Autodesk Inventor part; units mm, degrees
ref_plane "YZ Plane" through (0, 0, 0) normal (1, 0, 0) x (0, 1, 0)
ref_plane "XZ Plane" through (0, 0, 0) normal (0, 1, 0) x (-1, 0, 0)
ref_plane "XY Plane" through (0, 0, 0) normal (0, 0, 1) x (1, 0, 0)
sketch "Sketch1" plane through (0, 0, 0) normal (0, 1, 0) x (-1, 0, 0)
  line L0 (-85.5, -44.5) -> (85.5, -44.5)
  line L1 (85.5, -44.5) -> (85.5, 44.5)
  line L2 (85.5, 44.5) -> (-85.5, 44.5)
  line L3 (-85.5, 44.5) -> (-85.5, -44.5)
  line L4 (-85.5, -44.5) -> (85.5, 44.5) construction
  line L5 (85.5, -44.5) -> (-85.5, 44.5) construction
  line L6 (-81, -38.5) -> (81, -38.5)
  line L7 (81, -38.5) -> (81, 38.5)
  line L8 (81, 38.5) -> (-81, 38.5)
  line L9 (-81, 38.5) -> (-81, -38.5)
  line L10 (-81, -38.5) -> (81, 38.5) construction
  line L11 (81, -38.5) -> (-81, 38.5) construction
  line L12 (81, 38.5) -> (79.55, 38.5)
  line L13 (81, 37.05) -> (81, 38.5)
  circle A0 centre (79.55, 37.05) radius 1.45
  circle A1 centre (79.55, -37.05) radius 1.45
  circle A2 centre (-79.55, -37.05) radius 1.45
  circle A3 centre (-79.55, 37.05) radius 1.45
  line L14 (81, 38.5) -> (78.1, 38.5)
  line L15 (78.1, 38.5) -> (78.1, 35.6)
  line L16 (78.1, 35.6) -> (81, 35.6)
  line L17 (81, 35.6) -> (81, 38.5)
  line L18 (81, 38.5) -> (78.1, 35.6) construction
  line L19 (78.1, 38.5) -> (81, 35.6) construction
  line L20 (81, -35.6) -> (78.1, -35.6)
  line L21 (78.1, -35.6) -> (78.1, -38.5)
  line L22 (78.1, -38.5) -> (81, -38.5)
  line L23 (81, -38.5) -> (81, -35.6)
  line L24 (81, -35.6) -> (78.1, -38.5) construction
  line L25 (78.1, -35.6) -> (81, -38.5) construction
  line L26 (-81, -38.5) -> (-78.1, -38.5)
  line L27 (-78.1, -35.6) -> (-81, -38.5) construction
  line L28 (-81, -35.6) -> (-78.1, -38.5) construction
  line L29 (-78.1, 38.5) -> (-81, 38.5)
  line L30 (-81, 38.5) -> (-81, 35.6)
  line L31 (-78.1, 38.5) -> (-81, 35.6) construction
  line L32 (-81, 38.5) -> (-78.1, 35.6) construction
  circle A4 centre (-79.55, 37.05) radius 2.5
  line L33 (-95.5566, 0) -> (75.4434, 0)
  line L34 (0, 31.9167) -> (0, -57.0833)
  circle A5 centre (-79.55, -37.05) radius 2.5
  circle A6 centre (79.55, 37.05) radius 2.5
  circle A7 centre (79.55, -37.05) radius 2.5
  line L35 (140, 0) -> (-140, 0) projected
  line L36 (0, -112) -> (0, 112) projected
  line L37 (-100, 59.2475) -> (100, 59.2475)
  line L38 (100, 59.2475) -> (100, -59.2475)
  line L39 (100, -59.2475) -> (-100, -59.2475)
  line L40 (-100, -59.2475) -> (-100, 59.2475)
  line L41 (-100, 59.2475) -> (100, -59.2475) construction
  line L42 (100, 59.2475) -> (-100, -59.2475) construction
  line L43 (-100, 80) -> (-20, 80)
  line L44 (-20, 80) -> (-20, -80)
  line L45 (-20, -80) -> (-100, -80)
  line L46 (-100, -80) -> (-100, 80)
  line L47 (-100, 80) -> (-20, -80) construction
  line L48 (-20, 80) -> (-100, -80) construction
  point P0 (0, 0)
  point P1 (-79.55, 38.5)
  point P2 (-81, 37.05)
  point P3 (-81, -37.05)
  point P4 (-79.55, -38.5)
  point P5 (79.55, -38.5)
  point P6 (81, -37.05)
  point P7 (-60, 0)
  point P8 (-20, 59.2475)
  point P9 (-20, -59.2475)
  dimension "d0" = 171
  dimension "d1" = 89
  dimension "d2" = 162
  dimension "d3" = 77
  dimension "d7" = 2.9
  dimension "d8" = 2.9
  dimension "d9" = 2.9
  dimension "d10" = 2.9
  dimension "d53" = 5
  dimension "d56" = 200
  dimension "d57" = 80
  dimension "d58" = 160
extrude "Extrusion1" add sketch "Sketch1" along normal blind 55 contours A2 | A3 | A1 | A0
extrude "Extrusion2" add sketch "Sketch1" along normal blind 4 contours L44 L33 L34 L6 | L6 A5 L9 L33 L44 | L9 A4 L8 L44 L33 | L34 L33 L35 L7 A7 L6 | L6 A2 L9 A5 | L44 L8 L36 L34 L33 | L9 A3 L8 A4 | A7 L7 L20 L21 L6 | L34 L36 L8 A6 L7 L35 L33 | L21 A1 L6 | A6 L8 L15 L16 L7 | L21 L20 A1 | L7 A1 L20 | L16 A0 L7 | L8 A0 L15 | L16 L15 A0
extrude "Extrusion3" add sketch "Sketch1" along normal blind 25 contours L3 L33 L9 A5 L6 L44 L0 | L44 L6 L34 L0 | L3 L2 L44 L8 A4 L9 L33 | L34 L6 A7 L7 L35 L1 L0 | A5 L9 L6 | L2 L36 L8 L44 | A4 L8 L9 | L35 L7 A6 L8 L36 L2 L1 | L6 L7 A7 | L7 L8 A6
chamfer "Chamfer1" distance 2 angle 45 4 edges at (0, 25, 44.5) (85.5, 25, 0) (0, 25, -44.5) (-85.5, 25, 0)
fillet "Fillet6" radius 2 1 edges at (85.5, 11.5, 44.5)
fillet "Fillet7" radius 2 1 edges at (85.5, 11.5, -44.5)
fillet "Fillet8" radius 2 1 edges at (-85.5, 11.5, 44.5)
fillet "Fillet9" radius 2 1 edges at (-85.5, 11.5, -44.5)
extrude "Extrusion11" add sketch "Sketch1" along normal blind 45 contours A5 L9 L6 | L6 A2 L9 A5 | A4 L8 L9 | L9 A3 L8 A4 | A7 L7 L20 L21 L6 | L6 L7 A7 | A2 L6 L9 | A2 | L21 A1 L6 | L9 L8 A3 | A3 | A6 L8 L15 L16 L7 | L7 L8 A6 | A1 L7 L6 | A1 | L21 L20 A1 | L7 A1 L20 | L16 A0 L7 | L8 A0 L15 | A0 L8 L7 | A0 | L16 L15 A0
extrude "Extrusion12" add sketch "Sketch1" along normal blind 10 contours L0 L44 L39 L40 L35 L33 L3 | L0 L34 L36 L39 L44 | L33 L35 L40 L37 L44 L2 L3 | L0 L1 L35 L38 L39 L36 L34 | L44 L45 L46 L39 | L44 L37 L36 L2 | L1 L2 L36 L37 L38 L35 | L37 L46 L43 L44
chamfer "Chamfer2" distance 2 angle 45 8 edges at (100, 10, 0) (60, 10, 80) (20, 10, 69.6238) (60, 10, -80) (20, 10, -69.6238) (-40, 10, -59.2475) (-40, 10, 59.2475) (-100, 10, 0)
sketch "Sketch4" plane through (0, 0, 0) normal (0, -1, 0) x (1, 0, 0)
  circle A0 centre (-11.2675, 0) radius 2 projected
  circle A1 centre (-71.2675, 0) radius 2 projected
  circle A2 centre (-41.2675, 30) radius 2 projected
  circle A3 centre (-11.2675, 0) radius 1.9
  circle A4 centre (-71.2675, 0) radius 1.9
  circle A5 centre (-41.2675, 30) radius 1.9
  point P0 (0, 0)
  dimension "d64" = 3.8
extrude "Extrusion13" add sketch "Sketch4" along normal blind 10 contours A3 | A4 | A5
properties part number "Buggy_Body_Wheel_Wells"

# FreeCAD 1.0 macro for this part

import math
import FreeCAD as App
import Part
import Sketcher
Q = App.Units.Quantity


def edges_at(feature, points):
    """Names of the edges that pass closest to the given points."""
    edges = feature.Shape.Edges
    near = lambda p: min(range(len(edges)), key=lambda i: edges[i].distToShape(Part.Vertex(*p))[0])
    return sorted({f"Edge{near(p) + 1}" for p in points})


def add_polygon(sketch, points):
    """Adds a closed chain of lines whose ends are joined by coincident constraints."""
    first, n = sketch.GeometryCount, len(points)
    for a, b in zip(points, points[1:] + points[:1]):
        sketch.addGeometry(Part.LineSegment(App.Vector(*a, 0), App.Vector(*b, 0)), False)
    for i in range(n):
        sketch.addConstraint(Sketcher.Constraint("Coincident", first + i, 2, first + (i + 1) % n, 1))

doc = App.newDocument("Part")
body = doc.addObject("PartDesign::Body", "Body")
body.AllowCompound = True

sketch1 = body.newObject("Sketcher::SketchObject", "Sketch")
sketch1.AttachmentSupport = (doc.getObject("XZ_Plane"), [""])
sketch1.MapMode = "FlatFace"
sketch1.addGeometry(Part.Circle(App.Vector(79.5, -37, 0), App.Vector(0, 0, 1), 1.4), False)
sketch1.addGeometry(Part.Circle(App.Vector(79.5, 37, 0), App.Vector(0, 0, 1), 1.4), False)
sketch1.addGeometry(Part.Circle(App.Vector(-79.5, -37, 0), App.Vector(0, 0, 1), 1.4), False)
sketch1.addGeometry(Part.Circle(App.Vector(-79.5, 37, 0), App.Vector(0, 0, 1), 1.4), False)
sketch1.addConstraint(Sketcher.Constraint("Equal", 0, 1))
sketch1.addConstraint(Sketcher.Constraint("Equal", 1, 2))
sketch1.addConstraint(Sketcher.Constraint("Equal", 2, 3))
sketch1.addConstraint(Sketcher.Constraint("Symmetric", 1, 3, 2, 3, -1, 1))
sketch1.addConstraint(Sketcher.Constraint("Symmetric", 0, 3, 3, 3, -1, 1))
sketch1.addConstraint(Sketcher.Constraint("Symmetric", 0, 3, 2, 3, -2))
sketch1.addConstraint(Sketcher.Constraint("Diameter", 0, Q("2.9 mm")))
sketch1.addConstraint(Sketcher.Constraint("DistanceY", 0, 3, 1, 3, Q("74.1 mm")))
sketch1.addConstraint(Sketcher.Constraint("DistanceX", 2, 3, 0, 3, Q("159.1 mm")))
pad1 = body.newObject("PartDesign::Pad", "Pad")
pad1.Profile = sketch1
pad1.Length = 55
pad1.Reversed = True

sketch2 = body.newObject("Sketcher::SketchObject", "Sketch001")
sketch2.AttachmentSupport = (doc.getObject("XZ_Plane"), [""])
sketch2.MapMode = "FlatFace"
sketch2.addGeometry(Part.ArcOfCircle(Part.Circle(App.Vector(-79.5, -37, 0), App.Vector(0, 0, 1), 1.4), math.radians(-90), math.radians(180)), False)
sketch2.addGeometry(Part.LineSegment(App.Vector(-81, -37, 0), App.Vector(-81, 37, 0)), False)
sketch2.addGeometry(Part.ArcOfCircle(Part.Circle(App.Vector(-79.5, 37, 0), App.Vector(0, 0, 1), 1.4), math.radians(180), math.radians(450)), False)
sketch2.addGeometry(Part.LineSegment(App.Vector(-79.5, 38.5, 0), App.Vector(79.5, 38.5, 0)), False)
sketch2.addGeometry(Part.ArcOfCircle(Part.Circle(App.Vector(79.5, 37, 0), App.Vector(0, 0, 1), 1.4), math.radians(90), math.radians(360)), False)
sketch2.addGeometry(Part.LineSegment(App.Vector(81, 37, 0), App.Vector(81, -37, 0)), False)
sketch2.addGeometry(Part.ArcOfCircle(Part.Circle(App.Vector(79.5, -37, 0), App.Vector(0, 0, 1), 1.4), math.radians(0), math.radians(270)), False)
sketch2.addGeometry(Part.LineSegment(App.Vector(79.5, -38.5, 0), App.Vector(-79.6, -38.5, 0)), False)
sketch2.addConstraint(Sketcher.Constraint("Tangent", 0, 2, 1, 1))
sketch2.addConstraint(Sketcher.Constraint("Tangent", 1, 2, 2, 1))
sketch2.addConstraint(Sketcher.Constraint("Tangent", 2, 2, 3, 1))
sketch2.addConstraint(Sketcher.Constraint("Tangent", 3, 2, 4, 1))
sketch2.addConstraint(Sketcher.Constraint("Tangent", 4, 2, 5, 1))
sketch2.addConstraint(Sketcher.Constraint("Tangent", 5, 2, 6, 1))
sketch2.addConstraint(Sketcher.Constraint("Tangent", 6, 2, 7, 1))
sketch2.addConstraint(Sketcher.Constraint("Tangent", 7, 2, 0, 1))
sketch2.addConstraint(Sketcher.Constraint("Vertical", 1))
sketch2.addConstraint(Sketcher.Constraint("Horizontal", 3))
sketch2.addConstraint(Sketcher.Constraint("Vertical", 5))
sketch2.addConstraint(Sketcher.Constraint("Horizontal", 7))
sketch2.addConstraint(Sketcher.Constraint("Equal", 0, 2))
sketch2.addConstraint(Sketcher.Constraint("Equal", 2, 4))
sketch2.addConstraint(Sketcher.Constraint("Equal", 4, 6))
sketch2.addConstraint(Sketcher.Constraint("Symmetric", 0, 3, 4, 3, -1, 1))
sketch2.addConstraint(Sketcher.Constraint("Radius", 0, Q("1.45 mm")))
sketch2.addConstraint(Sketcher.Constraint("DistanceY", 6, 2, 3, 2, Q("77 mm")))
sketch2.addConstraint(Sketcher.Constraint("DistanceX", 3, 1, 3, 2, Q("159.1 mm")))
pad2 = body.newObject("PartDesign::Pad", "Pad001")
pad2.Profile = sketch2
pad2.Length = 4
pad2.Reversed = True

sketch3 = body.newObject("Sketcher::SketchObject", "Sketch002")
sketch3.AttachmentSupport = (doc.getObject("XZ_Plane"), [""])
sketch3.MapMode = "FlatFace"
add_polygon(sketch3, [(86, -44), (-86, -44), (-86, 44), (86, 44)])
add_polygon(sketch3, [(81, 38), (-81, 38), (-81, -38), (81, -38)])
sketch3.addConstraint(Sketcher.Constraint("Horizontal", 0))
sketch3.addConstraint(Sketcher.Constraint("Vertical", 1))
sketch3.addConstraint(Sketcher.Constraint("Horizontal", 2))
sketch3.addConstraint(Sketcher.Constraint("Vertical", 3))
sketch3.addConstraint(Sketcher.Constraint("Horizontal", 4))
sketch3.addConstraint(Sketcher.Constraint("Vertical", 5))
sketch3.addConstraint(Sketcher.Constraint("Horizontal", 6))
sketch3.addConstraint(Sketcher.Constraint("Vertical", 7))
sketch3.addConstraint(Sketcher.Constraint("Symmetric", 0, 2, 2, 2, -1, 1))
sketch3.addConstraint(Sketcher.Constraint("Symmetric", 4, 2, 6, 2, -1, 1))
sketch3.addConstraint(Sketcher.Constraint("DistanceX", 0, 2, 0, 1, Q("171 mm")))
sketch3.addConstraint(Sketcher.Constraint("DistanceX", 4, 2, 4, 1, Q("162 mm")))
sketch3.addConstraint(Sketcher.Constraint("DistanceY", 1, 1, 1, 2, Q("89 mm")))
sketch3.addConstraint(Sketcher.Constraint("DistanceY", 5, 2, 5, 1, Q("77 mm")))
pad3 = body.newObject("PartDesign::Pad", "Pad002")
pad3.Profile = sketch3
pad3.Length = 25
pad3.Reversed = True
doc.recompute()

chamfer = body.newObject("PartDesign::Chamfer", "Chamfer")
chamfer.Base = (pad3, edges_at(pad3, [
    (0, 25, 44.5),
    (85.5, 25, 0),
    (0, 25, -44.5),
    (-85.5, 25, 0),
]))
chamfer.Size = 2
doc.recompute()

fillet = body.newObject("PartDesign::Fillet", "Fillet")
fillet.Base = (chamfer, edges_at(chamfer, [(85.5, 11.5, 44.5)]))
fillet.Radius = 2
doc.recompute()

fillet2 = body.newObject("PartDesign::Fillet", "Fillet001")
fillet2.Base = (fillet, edges_at(fillet, [(85.5, 11.5, -44.5)]))
fillet2.Radius = 2
doc.recompute()

fillet3 = body.newObject("PartDesign::Fillet", "Fillet002")
fillet3.Base = (fillet2, edges_at(fillet2, [(-85.5, 11.5, 44.5)]))
fillet3.Radius = 2
doc.recompute()

fillet4 = body.newObject("PartDesign::Fillet", "Fillet003")
fillet4.Base = (fillet3, edges_at(fillet3, [(-85.5, 11.5, -44.5)]))
fillet4.Radius = 2

sketch4 = body.newObject("Sketcher::SketchObject", "Sketch003")
sketch4.AttachmentSupport = (doc.getObject("XZ_Plane"), [""])
sketch4.MapMode = "FlatFace"
sketch4.addGeometry(Part.Circle(App.Vector(79.5, -37, 0), App.Vector(0, 0, 1), 2.5), False)
sketch4.addGeometry(Part.Circle(App.Vector(79.5, 37, 0), App.Vector(0, 0, 1), 2.5), False)
sketch4.addGeometry(Part.Circle(App.Vector(-79.5, -37, 0), App.Vector(0, 0, 1), 2.5), False)
sketch4.addGeometry(Part.Circle(App.Vector(-79.5, 37, 0), App.Vector(0, 0, 1), 2.5), False)
sketch4.addConstraint(Sketcher.Constraint("Equal", 0, 1))
sketch4.addConstraint(Sketcher.Constraint("Equal", 1, 2))
sketch4.addConstraint(Sketcher.Constraint("Equal", 2, 3))
sketch4.addConstraint(Sketcher.Constraint("Symmetric", 1, 3, 2, 3, -1, 1))
sketch4.addConstraint(Sketcher.Constraint("Symmetric", 0, 3, 3, 3, -1, 1))
sketch4.addConstraint(Sketcher.Constraint("Symmetric", 0, 3, 2, 3, -2))
sketch4.addConstraint(Sketcher.Constraint("Diameter", 0, Q("5 mm")))
sketch4.addConstraint(Sketcher.Constraint("DistanceY", 0, 3, 1, 3, Q("74.1 mm")))
sketch4.addConstraint(Sketcher.Constraint("DistanceX", 2, 3, 0, 3, Q("159.1 mm")))
pad4 = body.newObject("PartDesign::Pad", "Pad003")
pad4.Profile = sketch4
pad4.Length = 45
pad4.Reversed = True

sketch5 = body.newObject("Sketcher::SketchObject", "Sketch004")
sketch5.AttachmentSupport = (doc.getObject("XZ_Plane"), [""])
sketch5.MapMode = "FlatFace"
add_polygon(sketch5, [(100, -80), (20, -80), (20, -59), (-100, -59), (-100, 59), (20, 59), (20, 80), (100, 80)])
add_polygon(sketch5, [(86, -44), (86, 44), (-86, 44), (-86, -44)])
sketch5.addConstraint(Sketcher.Constraint("Horizontal", 0))
sketch5.addConstraint(Sketcher.Constraint("Vertical", 1))
sketch5.addConstraint(Sketcher.Constraint("Horizontal", 2))
sketch5.addConstraint(Sketcher.Constraint("Vertical", 3))
sketch5.addConstraint(Sketcher.Constraint("Horizontal", 4))
sketch5.addConstraint(Sketcher.Constraint("Vertical", 5))
sketch5.addConstraint(Sketcher.Constraint("Horizontal", 6))
sketch5.addConstraint(Sketcher.Constraint("Vertical", 7))
sketch5.addConstraint(Sketcher.Constraint("Vertical", 8))
sketch5.addConstraint(Sketcher.Constraint("Horizontal", 9))
sketch5.addConstraint(Sketcher.Constraint("Vertical", 10))
sketch5.addConstraint(Sketcher.Constraint("Horizontal", 11))
sketch5.addConstraint(Sketcher.Constraint("Symmetric", 8, 2, 10, 2, -1, 1))
sketch5.addConstraint(Sketcher.Constraint("Symmetric", 1, 2, 4, 2, -1))
sketch5.addConstraint(Sketcher.Constraint("Equal", 1, 5))
sketch5.addConstraint(Sketcher.Constraint("DistanceX", 0, 2, 0, 1, Q("80 mm")))
sketch5.addConstraint(Sketcher.Constraint("DistanceX", 9, 2, 9, 1, Q("171 mm")))
sketch5.addConstraint(Sketcher.Constraint("DistanceY", 7, 2, 7, 1, Q("160 mm")))
sketch5.addConstraint(Sketcher.Constraint("DistanceY", 8, 1, 8, 2, Q("89 mm")))
sketch5.addConstraint(Sketcher.Constraint("DistanceX", 3, 2, 6, 2, Q("200 mm")))
sketch5.addConstraint(Sketcher.Constraint("DistanceX", -1, 1, 0, 2, Q("20 mm")))
sketch5.addConstraint(Sketcher.Constraint("DistanceY", 3, 1, 3, 2, Q("118.495 mm")))
pad5 = body.newObject("PartDesign::Pad", "Pad004")
pad5.Profile = sketch5
pad5.Length = 10
pad5.Reversed = True
doc.recompute()

chamfer2 = body.newObject("PartDesign::Chamfer", "Chamfer001")
chamfer2.Base = (pad5, edges_at(pad5, [
    (100, 10, 0),
    (60, 10, 80),
    (20, 10, 69.624),
    (60, 10, -80),
    (20, 10, -69.624),
    (-40, 10, -59.248),
    (-40, 10, 59.248),
    (-100, 10, 0),
]))
chamfer2.Size = 2

sketch6 = body.newObject("Sketcher::SketchObject", "Sketch005")
sketch6.AttachmentSupport = (doc.getObject("XZ_Plane"), [""])
sketch6.MapMode = "FlatFace"
sketch6.addGeometry(Part.Circle(App.Vector(-11.3, 0, 0), App.Vector(0, 0, 1), 1.9), False)
sketch6.addGeometry(Part.Circle(App.Vector(-71.3, 0, 0), App.Vector(0, 0, 1), 1.9), False)
sketch6.addGeometry(Part.Circle(App.Vector(-41.3, 30, 0), App.Vector(0, 0, 1), 1.9), False)
sketch6.addConstraint(Sketcher.Constraint("Equal", 0, 1))
sketch6.addConstraint(Sketcher.Constraint("Equal", 1, 2))
sketch6.addConstraint(Sketcher.Constraint("PointOnObject", 0, 3, -1))
sketch6.addConstraint(Sketcher.Constraint("PointOnObject", 1, 3, -1))
sketch6.addConstraint(Sketcher.Constraint("Diameter", 0, Q("3.8 mm")))
sketch6.addConstraint(Sketcher.Constraint("DistanceY", -1, 1, 2, 3, Q("30 mm")))
sketch6.addConstraint(Sketcher.Constraint("DistanceX", 1, 3, 0, 3, Q("60 mm")))
sketch6.addConstraint(Sketcher.Constraint("DistanceX", 2, 3, 0, 3, Q("30 mm")))
sketch6.addConstraint(Sketcher.Constraint("DistanceX", 0, 3, -1, 1, Q("11.2675 mm")))
pad6 = body.newObject("PartDesign::Pad", "Pad005")
pad6.Profile = sketch6
pad6.Length = 10

doc.recompute()
